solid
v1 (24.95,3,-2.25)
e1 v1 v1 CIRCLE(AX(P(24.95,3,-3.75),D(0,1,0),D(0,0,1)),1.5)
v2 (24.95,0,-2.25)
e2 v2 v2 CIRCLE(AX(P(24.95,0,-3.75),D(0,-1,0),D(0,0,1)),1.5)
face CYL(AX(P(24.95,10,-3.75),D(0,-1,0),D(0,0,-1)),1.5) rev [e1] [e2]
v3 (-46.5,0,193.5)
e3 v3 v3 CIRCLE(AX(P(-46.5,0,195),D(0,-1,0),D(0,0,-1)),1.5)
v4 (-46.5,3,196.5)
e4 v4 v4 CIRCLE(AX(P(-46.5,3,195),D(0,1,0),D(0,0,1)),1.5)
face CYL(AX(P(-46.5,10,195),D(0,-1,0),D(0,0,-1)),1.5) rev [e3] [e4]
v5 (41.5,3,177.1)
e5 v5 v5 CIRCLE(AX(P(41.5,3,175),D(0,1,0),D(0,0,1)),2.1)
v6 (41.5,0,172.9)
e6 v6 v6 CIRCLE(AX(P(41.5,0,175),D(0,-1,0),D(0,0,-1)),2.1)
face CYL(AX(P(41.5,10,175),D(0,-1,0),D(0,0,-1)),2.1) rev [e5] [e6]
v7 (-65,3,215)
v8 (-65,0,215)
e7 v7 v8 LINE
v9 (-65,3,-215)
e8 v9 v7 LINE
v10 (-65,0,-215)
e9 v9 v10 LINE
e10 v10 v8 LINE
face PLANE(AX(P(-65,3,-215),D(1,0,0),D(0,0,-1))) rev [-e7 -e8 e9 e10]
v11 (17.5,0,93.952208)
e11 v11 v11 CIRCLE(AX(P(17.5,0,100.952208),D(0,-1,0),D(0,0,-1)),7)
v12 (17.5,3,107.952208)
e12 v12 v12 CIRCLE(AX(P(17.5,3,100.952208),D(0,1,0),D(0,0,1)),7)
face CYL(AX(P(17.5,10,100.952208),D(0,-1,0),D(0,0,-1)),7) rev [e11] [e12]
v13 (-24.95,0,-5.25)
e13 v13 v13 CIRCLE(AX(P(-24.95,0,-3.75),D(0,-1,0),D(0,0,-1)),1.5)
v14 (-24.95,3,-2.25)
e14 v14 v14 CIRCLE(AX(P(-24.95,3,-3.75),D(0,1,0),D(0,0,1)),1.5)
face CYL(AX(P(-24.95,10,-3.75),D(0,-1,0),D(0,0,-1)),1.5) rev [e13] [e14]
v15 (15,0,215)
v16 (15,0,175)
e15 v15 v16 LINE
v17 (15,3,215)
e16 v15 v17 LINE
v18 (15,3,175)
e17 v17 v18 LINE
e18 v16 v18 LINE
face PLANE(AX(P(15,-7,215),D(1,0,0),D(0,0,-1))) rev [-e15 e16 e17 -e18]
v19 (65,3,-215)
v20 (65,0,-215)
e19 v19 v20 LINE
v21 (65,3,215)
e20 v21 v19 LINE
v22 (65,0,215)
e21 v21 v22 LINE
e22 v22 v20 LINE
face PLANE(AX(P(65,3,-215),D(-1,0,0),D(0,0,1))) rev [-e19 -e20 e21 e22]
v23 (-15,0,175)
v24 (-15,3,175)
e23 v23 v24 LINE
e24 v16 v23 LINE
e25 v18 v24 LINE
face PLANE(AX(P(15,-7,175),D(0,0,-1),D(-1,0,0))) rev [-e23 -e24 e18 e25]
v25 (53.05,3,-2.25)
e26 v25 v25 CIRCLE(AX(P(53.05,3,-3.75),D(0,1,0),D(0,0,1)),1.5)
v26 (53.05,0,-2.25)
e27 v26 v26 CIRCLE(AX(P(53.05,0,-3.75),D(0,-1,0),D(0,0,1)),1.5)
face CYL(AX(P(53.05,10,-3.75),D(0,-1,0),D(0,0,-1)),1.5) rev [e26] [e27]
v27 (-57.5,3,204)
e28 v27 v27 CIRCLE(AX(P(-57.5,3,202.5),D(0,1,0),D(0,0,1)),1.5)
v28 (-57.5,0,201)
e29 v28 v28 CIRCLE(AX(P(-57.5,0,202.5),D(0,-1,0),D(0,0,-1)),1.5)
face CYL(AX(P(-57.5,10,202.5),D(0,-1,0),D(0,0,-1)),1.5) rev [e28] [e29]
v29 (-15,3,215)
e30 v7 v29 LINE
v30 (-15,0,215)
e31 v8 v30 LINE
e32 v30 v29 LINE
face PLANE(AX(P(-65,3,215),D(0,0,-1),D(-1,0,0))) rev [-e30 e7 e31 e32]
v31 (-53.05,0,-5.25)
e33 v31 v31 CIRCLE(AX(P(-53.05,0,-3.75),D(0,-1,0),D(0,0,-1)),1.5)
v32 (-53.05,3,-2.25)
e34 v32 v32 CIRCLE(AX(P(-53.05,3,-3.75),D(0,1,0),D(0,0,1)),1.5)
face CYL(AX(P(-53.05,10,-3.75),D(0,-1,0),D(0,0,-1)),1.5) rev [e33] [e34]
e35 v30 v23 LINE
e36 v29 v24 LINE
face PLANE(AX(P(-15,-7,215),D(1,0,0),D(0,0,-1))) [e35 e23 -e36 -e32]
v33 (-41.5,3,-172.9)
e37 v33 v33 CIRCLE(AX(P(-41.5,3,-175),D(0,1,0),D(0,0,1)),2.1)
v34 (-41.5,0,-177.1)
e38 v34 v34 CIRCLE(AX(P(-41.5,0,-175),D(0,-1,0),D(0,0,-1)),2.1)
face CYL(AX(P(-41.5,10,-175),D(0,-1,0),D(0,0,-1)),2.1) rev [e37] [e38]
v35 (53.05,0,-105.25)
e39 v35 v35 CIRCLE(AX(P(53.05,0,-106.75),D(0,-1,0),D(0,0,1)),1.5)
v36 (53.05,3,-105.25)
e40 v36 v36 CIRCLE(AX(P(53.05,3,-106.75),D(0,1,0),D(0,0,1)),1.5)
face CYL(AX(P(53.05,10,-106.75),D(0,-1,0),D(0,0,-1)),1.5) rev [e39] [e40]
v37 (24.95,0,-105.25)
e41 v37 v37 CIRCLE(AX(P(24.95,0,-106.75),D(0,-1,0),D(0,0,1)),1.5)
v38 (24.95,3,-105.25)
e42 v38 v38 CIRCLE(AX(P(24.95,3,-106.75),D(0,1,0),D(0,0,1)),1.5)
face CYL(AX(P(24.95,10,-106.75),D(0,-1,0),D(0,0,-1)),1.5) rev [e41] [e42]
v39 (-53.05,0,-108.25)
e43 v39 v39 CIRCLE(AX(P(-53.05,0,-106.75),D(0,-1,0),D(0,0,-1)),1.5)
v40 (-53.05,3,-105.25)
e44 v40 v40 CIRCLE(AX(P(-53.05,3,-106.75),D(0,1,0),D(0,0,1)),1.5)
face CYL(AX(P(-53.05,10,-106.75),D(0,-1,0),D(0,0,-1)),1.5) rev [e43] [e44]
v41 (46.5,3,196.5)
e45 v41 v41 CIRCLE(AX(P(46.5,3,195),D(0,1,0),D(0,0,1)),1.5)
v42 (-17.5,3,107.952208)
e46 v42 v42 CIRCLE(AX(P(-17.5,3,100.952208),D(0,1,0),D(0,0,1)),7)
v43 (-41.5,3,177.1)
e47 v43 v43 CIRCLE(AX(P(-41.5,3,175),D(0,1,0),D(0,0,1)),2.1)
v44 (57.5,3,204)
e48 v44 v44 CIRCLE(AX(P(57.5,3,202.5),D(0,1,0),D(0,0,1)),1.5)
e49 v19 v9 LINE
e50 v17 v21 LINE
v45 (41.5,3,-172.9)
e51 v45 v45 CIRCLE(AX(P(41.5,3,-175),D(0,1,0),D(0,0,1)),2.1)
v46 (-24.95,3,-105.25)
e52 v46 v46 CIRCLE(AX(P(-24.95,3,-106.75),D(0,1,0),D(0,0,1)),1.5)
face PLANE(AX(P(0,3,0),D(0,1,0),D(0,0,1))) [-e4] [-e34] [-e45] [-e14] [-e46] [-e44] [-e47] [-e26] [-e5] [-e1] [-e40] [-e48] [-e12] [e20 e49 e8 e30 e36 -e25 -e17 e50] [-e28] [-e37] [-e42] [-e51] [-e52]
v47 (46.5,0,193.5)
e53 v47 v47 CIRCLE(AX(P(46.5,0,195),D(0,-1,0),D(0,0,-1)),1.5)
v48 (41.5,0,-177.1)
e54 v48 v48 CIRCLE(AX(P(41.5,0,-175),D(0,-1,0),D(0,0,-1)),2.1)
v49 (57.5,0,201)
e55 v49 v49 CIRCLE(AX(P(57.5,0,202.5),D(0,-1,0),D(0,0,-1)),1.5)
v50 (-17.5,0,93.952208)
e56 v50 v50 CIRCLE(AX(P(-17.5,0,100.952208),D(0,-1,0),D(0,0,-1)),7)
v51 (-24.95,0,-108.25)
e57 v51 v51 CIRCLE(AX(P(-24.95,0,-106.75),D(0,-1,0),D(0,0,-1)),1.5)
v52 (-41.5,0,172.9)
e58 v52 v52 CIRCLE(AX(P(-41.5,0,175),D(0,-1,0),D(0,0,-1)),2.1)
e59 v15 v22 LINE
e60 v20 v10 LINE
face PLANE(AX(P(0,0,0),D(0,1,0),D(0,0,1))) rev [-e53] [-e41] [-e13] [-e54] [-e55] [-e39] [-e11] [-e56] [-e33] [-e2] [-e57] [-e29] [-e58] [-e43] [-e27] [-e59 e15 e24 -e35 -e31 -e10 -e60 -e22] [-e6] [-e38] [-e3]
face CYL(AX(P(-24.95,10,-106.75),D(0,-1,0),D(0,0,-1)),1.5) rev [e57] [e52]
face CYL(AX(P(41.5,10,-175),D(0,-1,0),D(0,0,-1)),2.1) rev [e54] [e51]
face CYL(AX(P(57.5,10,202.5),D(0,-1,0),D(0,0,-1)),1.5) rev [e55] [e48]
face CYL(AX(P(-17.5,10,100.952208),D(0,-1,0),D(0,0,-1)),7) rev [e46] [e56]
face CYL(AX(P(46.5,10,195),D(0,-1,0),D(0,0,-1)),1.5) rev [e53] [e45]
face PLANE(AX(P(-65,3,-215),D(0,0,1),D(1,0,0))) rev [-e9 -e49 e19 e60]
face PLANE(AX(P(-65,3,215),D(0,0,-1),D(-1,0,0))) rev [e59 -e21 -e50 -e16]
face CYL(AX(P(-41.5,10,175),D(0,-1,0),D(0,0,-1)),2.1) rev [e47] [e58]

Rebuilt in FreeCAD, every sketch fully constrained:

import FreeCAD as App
import Part
import Sketcher
from FreeCAD import Vector


def add_polygon(sketch, points):
    """Adds a closed chain of lines whose ends are joined by coincident constraints."""
    first, n = sketch.GeometryCount, len(points)
    for a, b in zip(points, points[1:] + points[:1]):
        sketch.addGeometry(Part.LineSegment(App.Vector(*a, 0), App.Vector(*b, 0)), False)
    for i in range(n):
        sketch.addConstraint(Sketcher.Constraint("Coincident", first + i, 2, first + (i + 1) % n, 1))

doc = App.newDocument("Part")
body = doc.addObject("PartDesign::Body", "Body")

sketch1 = body.newObject("Sketcher::SketchObject", "Sketch")
sketch1.AttachmentSupport = (doc.getObject("XZ_Plane"), [""])
sketch1.MapMode = "FlatFace"
add_polygon(sketch1, [(-65, -215), (-65, 215), (65, 215), (65, -215)])
sketch1.addConstraint([
    Sketcher.Constraint("Vertical", 0),
    Sketcher.Constraint("Horizontal", 1),
    Sketcher.Constraint("Vertical", 2),
    Sketcher.Constraint("Horizontal", 3),
    Sketcher.Constraint("Symmetric", 0, 2, 2, 2, -1, 1),
    Sketcher.Constraint("DistanceX", 1, 1, 1, 2, 130.0),
    Sketcher.Constraint("DistanceY", 0, 1, 0, 2, 430.0),
])
pad1 = body.newObject("PartDesign::Pad", "Pad")
pad1.Profile = sketch1
pad1.Length = 3
pad1.Reversed = True

sketch2 = body.newObject("Sketcher::SketchObject", "Sketch001")
sketch2.AttachmentSupport = (doc.getObject("XZ_Plane"), [""])
sketch2.MapMode = "FlatFace"
sketch2.AttachmentOffset = App.Placement(Vector(0, 0, -3), App.Rotation())
add_polygon(sketch2, [(-15, 175), (-15, 215), (15, 215), (15, 175)])
sketch2.addConstraint([
    Sketcher.Constraint("Vertical", 0),
    Sketcher.Constraint("Horizontal", 1),
    Sketcher.Constraint("Vertical", 2),
    Sketcher.Constraint("Horizontal", 3),
    Sketcher.Constraint("DistanceX", 1, 1, 1, 2, 30.0),
    Sketcher.Constraint("DistanceY", 0, 1, 0, 2, 40.0),
    Sketcher.Constraint("DistanceX", 0, 2, -1, 1, 15.0),
    Sketcher.Constraint("DistanceY", -1, 1, 0, 2, 215.0),
])
pocket1 = body.newObject("PartDesign::Pocket", "Pocket")
pocket1.Profile = sketch2
pocket1.Length = 10
pocket1.Reversed = True

sketch3 = body.newObject("Sketcher::SketchObject", "Sketch002")
sketch3.AttachmentSupport = (doc.getObject("XZ_Plane"), [""])
sketch3.MapMode = "FlatFace"
sketch3.addGeometry([
    Part.Circle(Vector(-53, -3.8, 0), Vector(0, 0, 1), 1.5),
    Part.Circle(Vector(-46.5, 195, 0), Vector(0, 0, 1), 1.5),
    Part.Circle(Vector(-24.9, -3.8, 0), Vector(0, 0, 1), 1.5),
    Part.Circle(Vector(-53, -106.8, 0), Vector(0, 0, 1), 1.5),
    Part.Circle(Vector(46.5, 195, 0), Vector(0, 0, 1), 1.5),
    Part.Circle(Vector(-24.9, -106.8, 0), Vector(0, 0, 1), 1.5),
    Part.Circle(Vector(24.9, -106.8, 0), Vector(0, 0, 1), 1.5),
    Part.Circle(Vector(57.5, 202.5, 0), Vector(0, 0, 1), 1.5),
    Part.Circle(Vector(53, -106.8, 0), Vector(0, 0, 1), 1.5),
    Part.Circle(Vector(24.9, -3.8, 0), Vector(0, 0, 1), 1.5),
    Part.Circle(Vector(-57.5, 202.5, 0), Vector(0, 0, 1), 1.5),
    Part.Circle(Vector(53, -3.8, 0), Vector(0, 0, 1), 1.5),
    Part.Circle(Vector(-41.5, 175, 0), Vector(0, 0, 1), 2.1),
    Part.Circle(Vector(41.5, 175, 0), Vector(0, 0, 1), 2.1),
    Part.Circle(Vector(41.5, -175, 0), Vector(0, 0, 1), 2.1),
    Part.Circle(Vector(-41.5, -175, 0), Vector(0, 0, 1), 2.1),
], False)
sketch3.addConstraint([
    Sketcher.Constraint("Equal", 0, 1),
    Sketcher.Constraint("Equal", 1, 2),
    Sketcher.Constraint("Equal", 2, 3),
    Sketcher.Constraint("Equal", 3, 4),
    Sketcher.Constraint("Equal", 4, 5),
    Sketcher.Constraint("Equal", 5, 6),
    Sketcher.Constraint("Equal", 6, 7),
    Sketcher.Constraint("Equal", 7, 8),
    Sketcher.Constraint("Equal", 8, 9),
    Sketcher.Constraint("Equal", 9, 10),
    Sketcher.Constraint("Equal", 10, 11),
    Sketcher.Constraint("Equal", 12, 13),
    Sketcher.Constraint("Equal", 13, 14),
    Sketcher.Constraint("Equal", 14, 15),
    Sketcher.Constraint("Symmetric", 12, 3, 14, 3, -1, 1),
    Sketcher.Constraint("Symmetric", 13, 3, 15, 3, -1, 1),
    Sketcher.Constraint("Symmetric", 1, 3, 4, 3, -2),
    Sketcher.Constraint("Symmetric", 5, 3, 6, 3, -2),
    Sketcher.Constraint("Symmetric", 3, 3, 8, 3, -2),
    Sketcher.Constraint("Symmetric", 2, 3, 9, 3, -2),
    Sketcher.Constraint("Symmetric", 7, 3, 10, 3, -2),
    Sketcher.Constraint("Symmetric", 0, 3, 11, 3, -2),
    Sketcher.Constraint("Symmetric", 12, 3, 13, 3, -2),
    Sketcher.Constraint("Horizontal", 0, 3, 2, 3),
    Sketcher.Constraint("Horizontal", 3, 3, 5, 3),
    Sketcher.Constraint("Vertical", 0, 3, 3, 3),
    Sketcher.Constraint("Vertical", 2, 3, 5, 3),
    Sketcher.Constraint("Diameter", 0, 3.0),
    Sketcher.Constraint("Diameter", 12, 4.2),
    Sketcher.Constraint("DistanceY", -1, 1, 1, 3, 195.0),
    Sketcher.Constraint("DistanceY", -1, 1, 12, 3, 175.0),
    Sketcher.Constraint("DistanceY", 3, 3, 0, 3, 103.0),
    Sketcher.Constraint("DistanceX", 1, 3, 4, 3, 93.0),
    Sketcher.Constraint("DistanceX", 3, 3, 6, 3, 78.0),
    Sketcher.Constraint("DistanceX", 4, 3, 7, 3, 11.0),
    Sketcher.Constraint("DistanceX", 1, 3, 12, 3, 5.0),
    Sketcher.Constraint("DistanceY", -1, 1, 7, 3, 202.5),
    Sketcher.Constraint("DistanceX", 0, 3, 2, 3, 28.1),
    Sketcher.Constraint("DistanceY", 0, 3, -1, 1, 3.75),
])
pocket2 = body.newObject("PartDesign::Pocket", "Pocket001")
pocket2.Profile = sketch3
pocket2.Length = 10

sketch4 = body.newObject("Sketcher::SketchObject", "Sketch003")
sketch4.AttachmentSupport = (doc.getObject("XZ_Plane"), [""])
sketch4.MapMode = "FlatFace"
sketch4.addGeometry([
    Part.Circle(Vector(-18, 101, 0), Vector(0, 0, 1), 7),
    Part.Circle(Vector(18, 101, 0), Vector(0, 0, 1), 7),
], False)
sketch4.addConstraint([
    Sketcher.Constraint("Equal", 0, 1),
    Sketcher.Constraint("Symmetric", 0, 3, 1, 3, -2),
    Sketcher.Constraint("Diameter", 0, 14.0),
    Sketcher.Constraint("DistanceX", 0, 3, 1, 3, 35.0),
    Sketcher.Constraint("DistanceY", -1, 1, 0, 3, 100.952208),
])
pocket3 = body.newObject("PartDesign::Pocket", "Pocket002")
pocket3.Profile = sketch4
pocket3.Length = 10

doc.recompute()
